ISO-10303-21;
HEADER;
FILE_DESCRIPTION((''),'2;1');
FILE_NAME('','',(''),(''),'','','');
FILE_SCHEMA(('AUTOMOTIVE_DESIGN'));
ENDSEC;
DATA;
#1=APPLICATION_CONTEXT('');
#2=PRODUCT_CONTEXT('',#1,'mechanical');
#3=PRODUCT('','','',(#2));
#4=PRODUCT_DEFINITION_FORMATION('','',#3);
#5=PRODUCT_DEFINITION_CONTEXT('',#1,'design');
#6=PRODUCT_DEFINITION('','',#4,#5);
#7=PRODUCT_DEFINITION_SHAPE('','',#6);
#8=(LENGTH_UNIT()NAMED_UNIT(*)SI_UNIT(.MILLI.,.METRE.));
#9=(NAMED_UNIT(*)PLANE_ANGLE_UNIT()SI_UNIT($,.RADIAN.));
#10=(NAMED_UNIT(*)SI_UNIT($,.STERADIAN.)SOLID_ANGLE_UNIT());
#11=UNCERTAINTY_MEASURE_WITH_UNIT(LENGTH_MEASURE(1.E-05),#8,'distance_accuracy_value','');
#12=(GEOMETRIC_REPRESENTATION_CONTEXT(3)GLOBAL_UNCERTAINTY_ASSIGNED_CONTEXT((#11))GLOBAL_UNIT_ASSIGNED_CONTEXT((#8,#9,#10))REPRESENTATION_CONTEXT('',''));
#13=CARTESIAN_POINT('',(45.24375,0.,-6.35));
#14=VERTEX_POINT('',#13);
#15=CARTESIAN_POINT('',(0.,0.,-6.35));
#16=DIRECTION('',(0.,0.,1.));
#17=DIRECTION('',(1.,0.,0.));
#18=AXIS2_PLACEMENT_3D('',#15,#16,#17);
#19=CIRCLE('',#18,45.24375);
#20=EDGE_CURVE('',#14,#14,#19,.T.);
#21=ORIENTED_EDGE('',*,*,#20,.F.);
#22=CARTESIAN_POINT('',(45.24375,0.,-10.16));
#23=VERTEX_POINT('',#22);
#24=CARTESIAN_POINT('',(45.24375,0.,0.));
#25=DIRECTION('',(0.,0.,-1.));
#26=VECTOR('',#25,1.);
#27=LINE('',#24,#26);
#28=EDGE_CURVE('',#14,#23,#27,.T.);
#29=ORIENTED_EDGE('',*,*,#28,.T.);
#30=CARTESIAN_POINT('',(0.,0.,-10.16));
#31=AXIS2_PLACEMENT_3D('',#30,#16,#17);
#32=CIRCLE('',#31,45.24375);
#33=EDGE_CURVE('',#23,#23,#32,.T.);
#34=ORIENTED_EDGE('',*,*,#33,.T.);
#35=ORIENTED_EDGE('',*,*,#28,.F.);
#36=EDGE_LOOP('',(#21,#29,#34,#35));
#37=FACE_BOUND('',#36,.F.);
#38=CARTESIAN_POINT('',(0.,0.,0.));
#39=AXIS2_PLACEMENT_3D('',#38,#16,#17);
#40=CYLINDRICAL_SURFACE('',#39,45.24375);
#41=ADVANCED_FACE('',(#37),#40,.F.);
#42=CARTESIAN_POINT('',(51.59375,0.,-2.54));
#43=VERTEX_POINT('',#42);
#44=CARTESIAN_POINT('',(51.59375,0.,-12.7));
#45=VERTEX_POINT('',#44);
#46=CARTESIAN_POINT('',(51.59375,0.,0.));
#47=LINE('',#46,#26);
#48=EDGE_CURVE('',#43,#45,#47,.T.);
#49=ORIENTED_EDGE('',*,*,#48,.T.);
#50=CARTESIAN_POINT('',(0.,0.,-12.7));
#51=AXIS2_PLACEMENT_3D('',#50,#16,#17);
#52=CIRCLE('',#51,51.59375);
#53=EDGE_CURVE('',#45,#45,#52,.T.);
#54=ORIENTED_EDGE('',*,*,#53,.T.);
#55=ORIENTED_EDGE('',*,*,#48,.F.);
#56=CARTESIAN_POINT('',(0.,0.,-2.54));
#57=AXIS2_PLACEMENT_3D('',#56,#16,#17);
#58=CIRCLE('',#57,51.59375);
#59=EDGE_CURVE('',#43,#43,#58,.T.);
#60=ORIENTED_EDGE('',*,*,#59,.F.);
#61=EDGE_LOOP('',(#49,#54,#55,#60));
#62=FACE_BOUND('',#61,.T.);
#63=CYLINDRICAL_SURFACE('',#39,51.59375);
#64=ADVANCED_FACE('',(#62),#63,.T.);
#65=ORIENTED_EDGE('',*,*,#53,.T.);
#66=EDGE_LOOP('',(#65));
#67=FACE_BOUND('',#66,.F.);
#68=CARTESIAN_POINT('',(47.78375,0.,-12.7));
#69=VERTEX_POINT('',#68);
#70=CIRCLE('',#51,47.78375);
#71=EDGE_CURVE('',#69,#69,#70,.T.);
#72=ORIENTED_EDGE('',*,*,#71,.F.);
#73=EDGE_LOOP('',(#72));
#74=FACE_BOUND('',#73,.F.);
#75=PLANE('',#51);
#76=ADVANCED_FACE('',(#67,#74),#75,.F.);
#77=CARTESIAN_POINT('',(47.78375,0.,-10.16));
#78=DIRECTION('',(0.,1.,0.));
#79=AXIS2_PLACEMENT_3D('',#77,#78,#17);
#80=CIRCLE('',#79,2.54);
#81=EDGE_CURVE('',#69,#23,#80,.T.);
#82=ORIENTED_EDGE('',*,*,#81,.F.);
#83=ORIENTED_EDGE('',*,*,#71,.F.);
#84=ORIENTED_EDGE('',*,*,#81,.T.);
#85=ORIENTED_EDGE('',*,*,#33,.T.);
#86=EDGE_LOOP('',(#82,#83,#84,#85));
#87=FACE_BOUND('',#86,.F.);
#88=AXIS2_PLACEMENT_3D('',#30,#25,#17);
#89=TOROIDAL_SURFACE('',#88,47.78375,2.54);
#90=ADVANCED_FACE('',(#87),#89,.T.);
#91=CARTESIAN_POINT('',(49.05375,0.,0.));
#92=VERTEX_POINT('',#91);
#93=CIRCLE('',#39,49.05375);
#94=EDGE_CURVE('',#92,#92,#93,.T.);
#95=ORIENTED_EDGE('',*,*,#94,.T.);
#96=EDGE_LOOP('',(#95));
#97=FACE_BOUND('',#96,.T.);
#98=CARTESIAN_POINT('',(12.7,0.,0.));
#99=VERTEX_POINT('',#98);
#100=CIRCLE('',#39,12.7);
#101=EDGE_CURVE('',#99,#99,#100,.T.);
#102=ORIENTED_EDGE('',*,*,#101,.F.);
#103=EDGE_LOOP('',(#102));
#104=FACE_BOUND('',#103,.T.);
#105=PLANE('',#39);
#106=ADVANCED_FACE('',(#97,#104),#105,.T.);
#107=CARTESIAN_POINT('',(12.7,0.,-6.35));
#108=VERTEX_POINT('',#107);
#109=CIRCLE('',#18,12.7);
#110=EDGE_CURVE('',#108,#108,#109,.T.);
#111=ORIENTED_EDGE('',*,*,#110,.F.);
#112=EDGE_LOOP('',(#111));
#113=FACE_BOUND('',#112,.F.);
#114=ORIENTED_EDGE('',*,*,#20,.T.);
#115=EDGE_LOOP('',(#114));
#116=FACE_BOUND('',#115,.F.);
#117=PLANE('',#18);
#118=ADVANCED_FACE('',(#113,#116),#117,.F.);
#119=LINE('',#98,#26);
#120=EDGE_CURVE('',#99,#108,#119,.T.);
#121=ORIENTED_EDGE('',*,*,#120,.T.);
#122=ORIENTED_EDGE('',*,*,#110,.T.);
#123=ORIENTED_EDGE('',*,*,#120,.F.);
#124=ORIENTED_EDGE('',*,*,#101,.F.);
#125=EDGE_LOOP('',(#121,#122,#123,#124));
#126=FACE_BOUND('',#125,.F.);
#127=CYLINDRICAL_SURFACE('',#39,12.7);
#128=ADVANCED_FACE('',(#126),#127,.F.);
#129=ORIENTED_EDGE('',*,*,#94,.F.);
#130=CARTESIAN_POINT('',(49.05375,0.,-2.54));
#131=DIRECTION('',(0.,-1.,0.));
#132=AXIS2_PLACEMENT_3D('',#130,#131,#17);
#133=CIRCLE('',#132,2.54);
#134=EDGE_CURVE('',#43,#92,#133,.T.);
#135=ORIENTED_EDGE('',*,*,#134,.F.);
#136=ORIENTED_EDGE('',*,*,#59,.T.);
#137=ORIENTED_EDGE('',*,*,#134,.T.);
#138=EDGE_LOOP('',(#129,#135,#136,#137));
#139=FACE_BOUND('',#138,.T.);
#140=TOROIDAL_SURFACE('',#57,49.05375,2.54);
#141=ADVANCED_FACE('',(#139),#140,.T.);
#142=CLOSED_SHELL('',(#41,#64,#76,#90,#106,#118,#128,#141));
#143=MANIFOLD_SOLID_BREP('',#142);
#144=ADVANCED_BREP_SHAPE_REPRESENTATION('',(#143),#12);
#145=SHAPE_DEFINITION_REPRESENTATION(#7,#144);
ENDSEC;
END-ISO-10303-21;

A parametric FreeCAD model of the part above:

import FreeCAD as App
import Part
import Sketcher

V = App.Vector
Q = App.Units.Quantity


def edges_at(feature, points):
    """Names of the edges that pass closest to the given points."""
    edges = feature.Shape.Edges
    near = lambda p: min(range(len(edges)), key=lambda i: edges[i].distToShape(Part.Vertex(*p))[0])
    return sorted({f"Edge{near(p) + 1}" for p in points})

doc = App.newDocument("Part")
body = doc.addObject("PartDesign::Body", "Body")

# Sketch on XY plane
sketch1 = body.newObject("Sketcher::SketchObject", "Sketch")
sketch1.AttachmentSupport = (doc.getObject("XY_Plane"), [""])
sketch1.MapMode = "FlatFace"
sketch1.addGeometry([
    Part.Circle(V(0, 0, 0), V(0, 0, 1), 45.24375),
    Part.Circle(V(0, 0, 0), V(0, 0, 1), 12.7),
], False)
sketch1.addConstraint([
    Sketcher.Constraint("Coincident", 0, 3, -1, 1),
    Sketcher.Constraint("Coincident", 1, 3, -1, 1),
    Sketcher.Constraint("Diameter", 1, Q("1 in")),
    Sketcher.Constraint("Diameter", 0, Q("3.5625 in")),
])
pad1 = body.newObject("PartDesign::Pad", "Pad")
pad1.Profile = sketch1
pad1.Length = Q("0.25 in")
pad1.Reversed = True

# Sketch on XY plane
sketch2 = body.newObject("Sketcher::SketchObject", "Sketch001")
sketch2.AttachmentSupport = (doc.getObject("XY_Plane"), [""])
sketch2.MapMode = "FlatFace"
sketch2.addGeometry([
    Part.Circle(V(0, 0, 0), V(0, 0, 1), 51.59375),
    Part.Circle(V(0, 0, 0), V(0, 0, 1), 45.24375),
], False)
sketch2.addConstraint([
    Sketcher.Constraint("Coincident", 0, 3, -1, 1),
    Sketcher.Constraint("Coincident", 1, 3, -1, 1),
    Sketcher.Constraint("Diameter", 0, Q("4.0625 in")),
    Sketcher.Constraint("Diameter", 1, Q("3.5625 in")),
])
pad2 = body.newObject("PartDesign::Pad", "Pad001")
pad2.Profile = sketch2
pad2.Length = Q("0.5 in")
pad2.Reversed = True
doc.recompute()

fillet = body.newObject("PartDesign::Fillet", "Fillet")
fillet.Base = (pad2, edges_at(pad2, [(-51.594, 0, 0)]))
fillet.Radius = Q("0.1 in")
doc.recompute()

fillet2 = body.newObject("PartDesign::Fillet", "Fillet001")
fillet2.Base = (fillet, edges_at(fillet, [(-45.244, 0, -12.7)]))
fillet2.Radius = Q("0.1 in")

doc.recompute()
